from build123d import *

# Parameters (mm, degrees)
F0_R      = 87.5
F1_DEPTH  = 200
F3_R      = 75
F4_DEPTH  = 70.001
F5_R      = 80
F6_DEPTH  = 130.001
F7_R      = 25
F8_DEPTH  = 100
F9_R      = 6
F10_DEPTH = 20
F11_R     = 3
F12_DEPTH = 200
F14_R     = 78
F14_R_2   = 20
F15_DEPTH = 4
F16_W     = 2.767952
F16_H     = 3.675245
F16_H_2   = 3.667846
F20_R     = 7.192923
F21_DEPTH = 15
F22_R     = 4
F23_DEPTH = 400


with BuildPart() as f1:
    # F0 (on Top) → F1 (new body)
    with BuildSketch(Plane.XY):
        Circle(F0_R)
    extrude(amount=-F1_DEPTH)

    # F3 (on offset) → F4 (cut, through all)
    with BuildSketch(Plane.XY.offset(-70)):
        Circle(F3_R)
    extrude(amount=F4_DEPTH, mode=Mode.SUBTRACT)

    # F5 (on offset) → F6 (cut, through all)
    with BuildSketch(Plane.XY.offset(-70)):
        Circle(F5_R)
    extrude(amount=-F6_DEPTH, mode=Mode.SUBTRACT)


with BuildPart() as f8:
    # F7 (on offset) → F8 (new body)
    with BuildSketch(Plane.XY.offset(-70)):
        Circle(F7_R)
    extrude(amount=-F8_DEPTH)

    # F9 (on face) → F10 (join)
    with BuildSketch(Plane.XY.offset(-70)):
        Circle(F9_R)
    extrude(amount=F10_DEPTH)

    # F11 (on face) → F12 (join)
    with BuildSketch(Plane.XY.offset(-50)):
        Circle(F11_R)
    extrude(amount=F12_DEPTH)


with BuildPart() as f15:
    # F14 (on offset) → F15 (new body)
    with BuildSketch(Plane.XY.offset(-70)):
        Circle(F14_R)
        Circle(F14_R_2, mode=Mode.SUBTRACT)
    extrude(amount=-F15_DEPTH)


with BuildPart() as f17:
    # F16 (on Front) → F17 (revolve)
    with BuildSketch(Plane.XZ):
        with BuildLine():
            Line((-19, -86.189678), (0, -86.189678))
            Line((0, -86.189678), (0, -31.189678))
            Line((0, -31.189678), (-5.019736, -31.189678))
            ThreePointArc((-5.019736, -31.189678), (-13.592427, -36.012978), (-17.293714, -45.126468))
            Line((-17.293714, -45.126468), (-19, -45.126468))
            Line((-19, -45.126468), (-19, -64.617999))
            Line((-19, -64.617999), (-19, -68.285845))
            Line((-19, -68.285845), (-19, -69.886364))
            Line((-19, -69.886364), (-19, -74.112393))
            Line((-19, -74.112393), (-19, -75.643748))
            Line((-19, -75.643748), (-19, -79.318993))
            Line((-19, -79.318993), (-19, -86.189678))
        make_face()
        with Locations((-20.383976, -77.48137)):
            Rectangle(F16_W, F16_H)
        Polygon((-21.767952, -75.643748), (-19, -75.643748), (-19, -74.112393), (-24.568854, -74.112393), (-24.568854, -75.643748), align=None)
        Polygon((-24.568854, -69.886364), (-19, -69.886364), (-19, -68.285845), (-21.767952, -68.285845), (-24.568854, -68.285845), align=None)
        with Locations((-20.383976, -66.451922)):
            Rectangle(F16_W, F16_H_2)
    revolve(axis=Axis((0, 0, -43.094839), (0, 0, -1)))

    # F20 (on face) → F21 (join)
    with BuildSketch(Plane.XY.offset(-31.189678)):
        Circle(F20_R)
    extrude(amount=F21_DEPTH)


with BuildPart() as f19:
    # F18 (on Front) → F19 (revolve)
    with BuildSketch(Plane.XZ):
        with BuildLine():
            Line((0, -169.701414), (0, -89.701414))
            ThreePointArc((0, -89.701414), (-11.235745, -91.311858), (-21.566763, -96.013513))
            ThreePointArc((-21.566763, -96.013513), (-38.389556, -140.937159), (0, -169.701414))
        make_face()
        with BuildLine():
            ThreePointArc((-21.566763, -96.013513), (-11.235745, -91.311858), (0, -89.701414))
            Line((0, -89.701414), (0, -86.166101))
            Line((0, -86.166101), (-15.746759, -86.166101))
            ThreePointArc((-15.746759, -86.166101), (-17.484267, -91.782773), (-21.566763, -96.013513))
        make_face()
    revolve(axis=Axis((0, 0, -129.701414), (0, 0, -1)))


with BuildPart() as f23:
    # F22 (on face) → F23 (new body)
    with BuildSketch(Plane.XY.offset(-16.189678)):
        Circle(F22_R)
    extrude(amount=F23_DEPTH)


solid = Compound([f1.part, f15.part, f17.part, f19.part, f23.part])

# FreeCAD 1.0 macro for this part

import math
import FreeCAD as App
import Part
import Sketcher

V = App.Vector
Q = App.Units.Quantity

doc = App.newDocument("Part")
body = doc.addObject("PartDesign::Body", "Body")

sketch1 = doc.addObject("Sketcher::SketchObject", "Sketch")
body.addObject(sketch1)
sketch1.AttachmentSupport = (doc.XY_Plane, [""])
sketch1.MapMode = "FlatFace"
sketch1.addGeometry(Part.Circle(V(0, 0, 0), V(0, 0, 1), 88), False)
sketch1.addConstraint([
    Sketcher.Constraint("Coincident", 0, 3, -1, 1),
    Sketcher.Constraint("Diameter", 0, Q("175 mm")),
])
pad1 = doc.addObject("PartDesign::Pad", "Pad")
body.addObject(pad1)
pad1.Profile = sketch1
pad1.Length = 200
pad1.Reversed = True

sketch2 = doc.addObject("Sketcher::SketchObject", "Sketch001")
body.addObject(sketch2)
sketch2.AttachmentSupport = (doc.XY_Plane, [""])
sketch2.MapMode = "FlatFace"
sketch2.AttachmentOffset = App.Placement(V(0, 0, -70), App.Rotation())
sketch2.addGeometry(Part.Circle(V(0, 0, 0), V(0, 0, 1), 75), False)
sketch2.addConstraint([
    Sketcher.Constraint("Coincident", 0, 3, -1, 1),
    Sketcher.Constraint("Diameter", 0, Q("150 mm")),
])
pocket1 = doc.addObject("PartDesign::Pocket", "Pocket")
body.addObject(pocket1)
pocket1.Profile = sketch2
pocket1.Type = "ThroughAll"
pocket1.Reversed = True

sketch3 = doc.addObject("Sketcher::SketchObject", "Sketch002")
body.addObject(sketch3)
sketch3.AttachmentSupport = (doc.XY_Plane, [""])
sketch3.MapMode = "FlatFace"
sketch3.AttachmentOffset = App.Placement(V(0, 0, -70), App.Rotation())
sketch3.addGeometry(Part.Circle(V(0, 0, 0), V(0, 0, 1), 80), False)
sketch3.addConstraint([
    Sketcher.Constraint("Coincident", 0, 3, -1, 1),
    Sketcher.Constraint("Diameter", 0, Q("160 mm")),
])
pocket2 = doc.addObject("PartDesign::Pocket", "Pocket001")
body.addObject(pocket2)
pocket2.Profile = sketch3
pocket2.Type = "ThroughAll"
body2 = doc.addObject("PartDesign::Body", "Body001")

sketch4 = doc.addObject("Sketcher::SketchObject", "Sketch003")
body2.addObject(sketch4)
sketch4.AttachmentSupport = (doc.getObject("XY_Plane001"), [""])
sketch4.MapMode = "FlatFace"
sketch4.AttachmentOffset = App.Placement(V(0, 0, -70), App.Rotation())
sketch4.addGeometry(Part.Circle(V(0, 0, 0), V(0, 0, 1), 25), False)
sketch4.addConstraint([
    Sketcher.Constraint("Coincident", 0, 3, -1, 1),
    Sketcher.Constraint("Diameter", 0, Q("50 mm")),
])
pad2 = doc.addObject("PartDesign::Pad", "Pad001")
body2.addObject(pad2)
pad2.Profile = sketch4
pad2.Length = 100
pad2.Reversed = True

sketch5 = doc.addObject("Sketcher::SketchObject", "Sketch004")
body2.addObject(sketch5)
sketch5.AttachmentSupport = (doc.getObject("XY_Plane001"), [""])
sketch5.MapMode = "FlatFace"
sketch5.AttachmentOffset = App.Placement(V(0, 0, -70), App.Rotation())
sketch5.addGeometry(Part.Circle(V(0, 0, 0), V(0, 0, 1), 6), False)
sketch5.addConstraint([
    Sketcher.Constraint("Coincident", 0, 3, -1, 1),
    Sketcher.Constraint("Diameter", 0, Q("12 mm")),
])
pad3 = doc.addObject("PartDesign::Pad", "Pad002")
body2.addObject(pad3)
pad3.Profile = sketch5
pad3.Length = 20

sketch6 = doc.addObject("Sketcher::SketchObject", "Sketch005")
body2.addObject(sketch6)
sketch6.AttachmentSupport = (doc.getObject("XY_Plane001"), [""])
sketch6.MapMode = "FlatFace"
sketch6.AttachmentOffset = App.Placement(V(0, 0, -50), App.Rotation())
sketch6.addGeometry(Part.Circle(V(0, 0, 0), V(0, 0, 1), 3), False)
sketch6.addConstraint([
    Sketcher.Constraint("Coincident", 0, 3, -1, 1),
    Sketcher.Constraint("Diameter", 0, Q("6 mm")),
])
pad4 = doc.addObject("PartDesign::Pad", "Pad003")
body2.addObject(pad4)
pad4.Profile = sketch6
pad4.Length = 200
body3 = doc.addObject("PartDesign::Body", "Body002")

sketch7 = doc.addObject("Sketcher::SketchObject", "Sketch006")
body3.addObject(sketch7)
sketch7.AttachmentSupport = (doc.getObject("XY_Plane002"), [""])
sketch7.MapMode = "FlatFace"
sketch7.AttachmentOffset = App.Placement(V(0, 0, -70), App.Rotation())
sketch7.addGeometry([
    Part.Circle(V(0, 0, 0), V(0, 0, 1), 78),
    Part.Circle(V(0, 0, 0), V(0, 0, 1), 20),
], False)
sketch7.addConstraint([
    Sketcher.Constraint("Coincident", 0, 3, -1, 1),
    Sketcher.Constraint("Coincident", 1, 3, -1, 1),
    Sketcher.Constraint("Diameter", 0, Q("156 mm")),
    Sketcher.Constraint("Diameter", 1, Q("40 mm")),
])
pad5 = doc.addObject("PartDesign::Pad", "Pad004")
body3.addObject(pad5)
pad5.Profile = sketch7
pad5.Length = 4
pad5.Reversed = True
body4 = doc.addObject("PartDesign::Body", "Body003")

sketch8 = doc.addObject("Sketcher::SketchObject", "Sketch007")
body4.addObject(sketch8)
sketch8.AttachmentSupport = (doc.getObject("XZ_Plane003"), [""])
sketch8.MapMode = "FlatFace"
sketch8.addGeometry([
    Part.LineSegment(V(-19, -79.3, 0), V(-19, -86.2, 0)),
    Part.LineSegment(V(-19, -86.2, 0), V(0, -86.2, 0)),
    Part.LineSegment(V(0, -86.2, 0), V(0, -31.2, 0)),
    Part.LineSegment(V(0, -31.2, 0), V(-5, -31.2, 0)),
    Part.ArcOfCircle(Part.Circle(V(-2.4, -45.9, 0), V(0, 0, 1), 14.9), math.radians(100), math.radians(177)),
    Part.LineSegment(V(-17.3, -45.1, 0), V(-19, -45.1, 0)),
    Part.LineSegment(V(-19, -45.1, 0), V(-19, -64.6, 0)),
    Part.LineSegment(V(-19, -64.6, 0), V(-21.8, -64.6, 0)),
    Part.LineSegment(V(-21.8, -64.6, 0), V(-21.8, -68.3, 0)),
    Part.LineSegment(V(-21.8, -68.3, 0), V(-24.6, -68.3, 0)),
    Part.LineSegment(V(-24.6, -68.3, 0), V(-24.6, -69.9, 0)),
    Part.LineSegment(V(-24.6, -69.9, 0), V(-19, -69.9, 0)),
    Part.LineSegment(V(-19, -69.9, 0), V(-19, -74.1, 0)),
    Part.LineSegment(V(-19, -74.1, 0), V(-24.6, -74.1, 0)),
    Part.LineSegment(V(-24.6, -74.1, 0), V(-24.6, -75.6, 0)),
    Part.LineSegment(V(-24.6, -75.6, 0), V(-21.8, -75.6, 0)),
    Part.LineSegment(V(-21.8, -75.6, 0), V(-21.8, -79.3, 0)),
    Part.LineSegment(V(-21.8, -79.3, 0), V(-19, -79.3, 0)),
], False)
sketch8.addConstraint([
    Sketcher.Constraint("Coincident", 0, 2, 1, 1),
    Sketcher.Constraint("Coincident", 1, 2, 2, 1),
    Sketcher.Constraint("Coincident", 2, 2, 3, 1),
    Sketcher.Constraint("Coincident", 3, 2, 4, 1),
    Sketcher.Constraint("Coincident", 4, 2, 5, 1),
    Sketcher.Constraint("Coincident", 5, 2, 6, 1),
    Sketcher.Constraint("Coincident", 6, 2, 7, 1),
    Sketcher.Constraint("Coincident", 7, 2, 8, 1),
    Sketcher.Constraint("Coincident", 8, 2, 9, 1),
    Sketcher.Constraint("Coincident", 9, 2, 10, 1),
    Sketcher.Constraint("Coincident", 10, 2, 11, 1),
    Sketcher.Constraint("Coincident", 11, 2, 12, 1),
    Sketcher.Constraint("Coincident", 12, 2, 13, 1),
    Sketcher.Constraint("Coincident", 13, 2, 14, 1),
    Sketcher.Constraint("Coincident", 14, 2, 15, 1),
    Sketcher.Constraint("Coincident", 15, 2, 16, 1),
    Sketcher.Constraint("Coincident", 16, 2, 17, 1),
    Sketcher.Constraint("Coincident", 17, 2, 0, 1),
    Sketcher.Constraint("Vertical", 0),
    Sketcher.Constraint("Horizontal", 1),
    Sketcher.Constraint("Vertical", 2),
    Sketcher.Constraint("Horizontal", 3),
    Sketcher.Constraint("Horizontal", 5),
    Sketcher.Constraint("Vertical", 6),
    Sketcher.Constraint("Horizontal", 7),
    Sketcher.Constraint("Vertical", 8),
    Sketcher.Constraint("Horizontal", 9),
    Sketcher.Constraint("Vertical", 10),
    Sketcher.Constraint("Horizontal", 11),
    Sketcher.Constraint("Vertical", 12),
    Sketcher.Constraint("Horizontal", 13),
    Sketcher.Constraint("Vertical", 14),
    Sketcher.Constraint("Horizontal", 15),
    Sketcher.Constraint("Vertical", 16),
    Sketcher.Constraint("Horizontal", 17),
    Sketcher.Constraint("PointOnObject", 1, 2, -2),
    Sketcher.Constraint("Vertical", 0, 2, 5, 2),
    Sketcher.Constraint("Vertical", 6, 2, 11, 2),
    Sketcher.Constraint("Vertical", 10, 2, 13, 2),
    Sketcher.Constraint("Vertical", 8, 2, 15, 2),
    Sketcher.Constraint("DistanceX", 1, 1, 1, 2, Q("19 mm")),
    Sketcher.Constraint("DistanceY", 2, 1, 2, 2, Q("55 mm")),
    Sketcher.Constraint("Radius", 4, Q("14.90549 mm")),
    Sketcher.Constraint("DistanceY", 6, 2, -1, 1, Q("64.617999 mm")),
    Sketcher.Constraint("DistanceY", 6, 2, 6, 1, Q("19.491531 mm")),
    Sketcher.Constraint("DistanceY", 10, 2, 10, 1, Q("1.600519 mm")),
    Sketcher.Constraint("DistanceY", 12, 2, 12, 1, Q("4.226029 mm")),
    Sketcher.Constraint("DistanceY", 16, 2, 12, 2, Q("5.206599 mm")),
    Sketcher.Constraint("DistanceX", 3, 2, 3, 1, Q("5.019736 mm")),
    Sketcher.Constraint("DistanceX", 5, 2, 5, 1, Q("1.706286 mm")),
    Sketcher.Constraint("DistanceX", 7, 2, 7, 1, Q("2.767952 mm")),
    Sketcher.Constraint("DistanceX", 9, 2, 9, 1, Q("2.800902 mm")),
    Sketcher.Constraint("DistanceY", 0, 2, 0, 1, Q("6.870686 mm")),
    Sketcher.Constraint("DistanceY", 8, 2, 8, 1, Q("3.667846 mm")),
    Sketcher.Constraint("DistanceY", 14, 2, 14, 1, Q("1.531355 mm")),
])
revolution = doc.addObject("PartDesign::Revolution", "Revolution")
body4.addObject(revolution)
revolution.Profile = sketch8
revolution.ReferenceAxis = (sketch8, ["V_Axis"])
revolution.Angle = 360

sketch9 = doc.addObject("Sketcher::SketchObject", "Sketch008")
body4.addObject(sketch9)
sketch9.AttachmentSupport = (doc.getObject("XY_Plane003"), [""])
sketch9.MapMode = "FlatFace"
sketch9.AttachmentOffset = App.Placement(V(0, 0, -31.189678), App.Rotation())
sketch9.addGeometry(Part.Circle(V(0, 0, 0), V(0, 0, 1), 7), False)
sketch9.addConstraint([
    Sketcher.Constraint("Coincident", 0, 3, -1, 1),
    Sketcher.Constraint("Diameter", 0, Q("14.385846 mm")),
])
pad6 = doc.addObject("PartDesign::Pad", "Pad005")
body4.addObject(pad6)
pad6.Profile = sketch9
pad6.Length = 15
body5 = doc.addObject("PartDesign::Body", "Body004")

sketch10 = doc.addObject("Sketcher::SketchObject", "Sketch009")
body5.addObject(sketch10)
sketch10.AttachmentSupport = (doc.getObject("XZ_Plane004"), [""])
sketch10.MapMode = "FlatFace"
sketch10.addGeometry([
    Part.LineSegment(V(0, -169.701414, 0), V(0, -86.166101, 0)),
    Part.LineSegment(V(0, -86.166101, 0), V(-15.746759, -86.166101, 0)),
    Part.ArcOfCircle(Part.Circle(V(-28.408682, -85.32624, 0), V(0, 0, 1), 12.689746), math.radians(-57.372908), math.radians(-3.79485)),
    Part.ArcOfCircle(Part.Circle(V(0, -129.701414, 0), V(0, 0, 1), 40), math.radians(122.627092), math.radians(270)),
], False)
sketch10.addConstraint([
    Sketcher.Constraint("Coincident", 0, 2, 1, 1),
    Sketcher.Constraint("Coincident", 1, 2, 2, 2),
    Sketcher.Constraint("Coincident", 2, 1, 3, 1),
    Sketcher.Constraint("Coincident", 3, 2, 0, 1),
    Sketcher.Constraint("Vertical", 0),
    Sketcher.Constraint("Horizontal", 1),
    Sketcher.Constraint("PointOnObject", 3, 3, -2),
    Sketcher.Constraint("PointOnObject", 0, 2, -2),
    Sketcher.Constraint("Radius", 3, Q("40 mm")),
    Sketcher.Constraint("Radius", 2, Q("12.689746 mm")),
    Sketcher.Constraint("DistanceX", 1, 2, 1, 1, Q("15.746759 mm")),
    Sketcher.Constraint("DistanceY", 0, 2, -1, 1, Q("86.166101 mm")),
    Sketcher.Constraint("DistanceY", 3, 3, 2, 1, Q("33.687901 mm")),
    Sketcher.Constraint("DistanceY", 0, 1, 0, 2, Q("83.535313 mm")),
])
revolution2 = doc.addObject("PartDesign::Revolution", "Revolution001")
body5.addObject(revolution2)
revolution2.Profile = sketch10
revolution2.ReferenceAxis = (sketch10, ["V_Axis"])
revolution2.Angle = 360
body6 = doc.addObject("PartDesign::Body", "Body005")

sketch11 = doc.addObject("Sketcher::SketchObject", "Sketch010")
body6.addObject(sketch11)
sketch11.AttachmentSupport = (doc.getObject("XY_Plane005"), [""])
sketch11.MapMode = "FlatFace"
sketch11.AttachmentOffset = App.Placement(V(0, 0, -16.189678), App.Rotation())
sketch11.addGeometry(Part.Circle(V(0, 0, 0), V(0, 0, 1), 4), False)
sketch11.addConstraint([
    Sketcher.Constraint("Coincident", 0, 3, -1, 1),
    Sketcher.Constraint("Diameter", 0, Q("8 mm")),
])
pad7 = doc.addObject("PartDesign::Pad", "Pad006")
body6.addObject(pad7)
pad7.Profile = sketch11
pad7.Length = 400
body2.Visibility = False

doc.recompute()
